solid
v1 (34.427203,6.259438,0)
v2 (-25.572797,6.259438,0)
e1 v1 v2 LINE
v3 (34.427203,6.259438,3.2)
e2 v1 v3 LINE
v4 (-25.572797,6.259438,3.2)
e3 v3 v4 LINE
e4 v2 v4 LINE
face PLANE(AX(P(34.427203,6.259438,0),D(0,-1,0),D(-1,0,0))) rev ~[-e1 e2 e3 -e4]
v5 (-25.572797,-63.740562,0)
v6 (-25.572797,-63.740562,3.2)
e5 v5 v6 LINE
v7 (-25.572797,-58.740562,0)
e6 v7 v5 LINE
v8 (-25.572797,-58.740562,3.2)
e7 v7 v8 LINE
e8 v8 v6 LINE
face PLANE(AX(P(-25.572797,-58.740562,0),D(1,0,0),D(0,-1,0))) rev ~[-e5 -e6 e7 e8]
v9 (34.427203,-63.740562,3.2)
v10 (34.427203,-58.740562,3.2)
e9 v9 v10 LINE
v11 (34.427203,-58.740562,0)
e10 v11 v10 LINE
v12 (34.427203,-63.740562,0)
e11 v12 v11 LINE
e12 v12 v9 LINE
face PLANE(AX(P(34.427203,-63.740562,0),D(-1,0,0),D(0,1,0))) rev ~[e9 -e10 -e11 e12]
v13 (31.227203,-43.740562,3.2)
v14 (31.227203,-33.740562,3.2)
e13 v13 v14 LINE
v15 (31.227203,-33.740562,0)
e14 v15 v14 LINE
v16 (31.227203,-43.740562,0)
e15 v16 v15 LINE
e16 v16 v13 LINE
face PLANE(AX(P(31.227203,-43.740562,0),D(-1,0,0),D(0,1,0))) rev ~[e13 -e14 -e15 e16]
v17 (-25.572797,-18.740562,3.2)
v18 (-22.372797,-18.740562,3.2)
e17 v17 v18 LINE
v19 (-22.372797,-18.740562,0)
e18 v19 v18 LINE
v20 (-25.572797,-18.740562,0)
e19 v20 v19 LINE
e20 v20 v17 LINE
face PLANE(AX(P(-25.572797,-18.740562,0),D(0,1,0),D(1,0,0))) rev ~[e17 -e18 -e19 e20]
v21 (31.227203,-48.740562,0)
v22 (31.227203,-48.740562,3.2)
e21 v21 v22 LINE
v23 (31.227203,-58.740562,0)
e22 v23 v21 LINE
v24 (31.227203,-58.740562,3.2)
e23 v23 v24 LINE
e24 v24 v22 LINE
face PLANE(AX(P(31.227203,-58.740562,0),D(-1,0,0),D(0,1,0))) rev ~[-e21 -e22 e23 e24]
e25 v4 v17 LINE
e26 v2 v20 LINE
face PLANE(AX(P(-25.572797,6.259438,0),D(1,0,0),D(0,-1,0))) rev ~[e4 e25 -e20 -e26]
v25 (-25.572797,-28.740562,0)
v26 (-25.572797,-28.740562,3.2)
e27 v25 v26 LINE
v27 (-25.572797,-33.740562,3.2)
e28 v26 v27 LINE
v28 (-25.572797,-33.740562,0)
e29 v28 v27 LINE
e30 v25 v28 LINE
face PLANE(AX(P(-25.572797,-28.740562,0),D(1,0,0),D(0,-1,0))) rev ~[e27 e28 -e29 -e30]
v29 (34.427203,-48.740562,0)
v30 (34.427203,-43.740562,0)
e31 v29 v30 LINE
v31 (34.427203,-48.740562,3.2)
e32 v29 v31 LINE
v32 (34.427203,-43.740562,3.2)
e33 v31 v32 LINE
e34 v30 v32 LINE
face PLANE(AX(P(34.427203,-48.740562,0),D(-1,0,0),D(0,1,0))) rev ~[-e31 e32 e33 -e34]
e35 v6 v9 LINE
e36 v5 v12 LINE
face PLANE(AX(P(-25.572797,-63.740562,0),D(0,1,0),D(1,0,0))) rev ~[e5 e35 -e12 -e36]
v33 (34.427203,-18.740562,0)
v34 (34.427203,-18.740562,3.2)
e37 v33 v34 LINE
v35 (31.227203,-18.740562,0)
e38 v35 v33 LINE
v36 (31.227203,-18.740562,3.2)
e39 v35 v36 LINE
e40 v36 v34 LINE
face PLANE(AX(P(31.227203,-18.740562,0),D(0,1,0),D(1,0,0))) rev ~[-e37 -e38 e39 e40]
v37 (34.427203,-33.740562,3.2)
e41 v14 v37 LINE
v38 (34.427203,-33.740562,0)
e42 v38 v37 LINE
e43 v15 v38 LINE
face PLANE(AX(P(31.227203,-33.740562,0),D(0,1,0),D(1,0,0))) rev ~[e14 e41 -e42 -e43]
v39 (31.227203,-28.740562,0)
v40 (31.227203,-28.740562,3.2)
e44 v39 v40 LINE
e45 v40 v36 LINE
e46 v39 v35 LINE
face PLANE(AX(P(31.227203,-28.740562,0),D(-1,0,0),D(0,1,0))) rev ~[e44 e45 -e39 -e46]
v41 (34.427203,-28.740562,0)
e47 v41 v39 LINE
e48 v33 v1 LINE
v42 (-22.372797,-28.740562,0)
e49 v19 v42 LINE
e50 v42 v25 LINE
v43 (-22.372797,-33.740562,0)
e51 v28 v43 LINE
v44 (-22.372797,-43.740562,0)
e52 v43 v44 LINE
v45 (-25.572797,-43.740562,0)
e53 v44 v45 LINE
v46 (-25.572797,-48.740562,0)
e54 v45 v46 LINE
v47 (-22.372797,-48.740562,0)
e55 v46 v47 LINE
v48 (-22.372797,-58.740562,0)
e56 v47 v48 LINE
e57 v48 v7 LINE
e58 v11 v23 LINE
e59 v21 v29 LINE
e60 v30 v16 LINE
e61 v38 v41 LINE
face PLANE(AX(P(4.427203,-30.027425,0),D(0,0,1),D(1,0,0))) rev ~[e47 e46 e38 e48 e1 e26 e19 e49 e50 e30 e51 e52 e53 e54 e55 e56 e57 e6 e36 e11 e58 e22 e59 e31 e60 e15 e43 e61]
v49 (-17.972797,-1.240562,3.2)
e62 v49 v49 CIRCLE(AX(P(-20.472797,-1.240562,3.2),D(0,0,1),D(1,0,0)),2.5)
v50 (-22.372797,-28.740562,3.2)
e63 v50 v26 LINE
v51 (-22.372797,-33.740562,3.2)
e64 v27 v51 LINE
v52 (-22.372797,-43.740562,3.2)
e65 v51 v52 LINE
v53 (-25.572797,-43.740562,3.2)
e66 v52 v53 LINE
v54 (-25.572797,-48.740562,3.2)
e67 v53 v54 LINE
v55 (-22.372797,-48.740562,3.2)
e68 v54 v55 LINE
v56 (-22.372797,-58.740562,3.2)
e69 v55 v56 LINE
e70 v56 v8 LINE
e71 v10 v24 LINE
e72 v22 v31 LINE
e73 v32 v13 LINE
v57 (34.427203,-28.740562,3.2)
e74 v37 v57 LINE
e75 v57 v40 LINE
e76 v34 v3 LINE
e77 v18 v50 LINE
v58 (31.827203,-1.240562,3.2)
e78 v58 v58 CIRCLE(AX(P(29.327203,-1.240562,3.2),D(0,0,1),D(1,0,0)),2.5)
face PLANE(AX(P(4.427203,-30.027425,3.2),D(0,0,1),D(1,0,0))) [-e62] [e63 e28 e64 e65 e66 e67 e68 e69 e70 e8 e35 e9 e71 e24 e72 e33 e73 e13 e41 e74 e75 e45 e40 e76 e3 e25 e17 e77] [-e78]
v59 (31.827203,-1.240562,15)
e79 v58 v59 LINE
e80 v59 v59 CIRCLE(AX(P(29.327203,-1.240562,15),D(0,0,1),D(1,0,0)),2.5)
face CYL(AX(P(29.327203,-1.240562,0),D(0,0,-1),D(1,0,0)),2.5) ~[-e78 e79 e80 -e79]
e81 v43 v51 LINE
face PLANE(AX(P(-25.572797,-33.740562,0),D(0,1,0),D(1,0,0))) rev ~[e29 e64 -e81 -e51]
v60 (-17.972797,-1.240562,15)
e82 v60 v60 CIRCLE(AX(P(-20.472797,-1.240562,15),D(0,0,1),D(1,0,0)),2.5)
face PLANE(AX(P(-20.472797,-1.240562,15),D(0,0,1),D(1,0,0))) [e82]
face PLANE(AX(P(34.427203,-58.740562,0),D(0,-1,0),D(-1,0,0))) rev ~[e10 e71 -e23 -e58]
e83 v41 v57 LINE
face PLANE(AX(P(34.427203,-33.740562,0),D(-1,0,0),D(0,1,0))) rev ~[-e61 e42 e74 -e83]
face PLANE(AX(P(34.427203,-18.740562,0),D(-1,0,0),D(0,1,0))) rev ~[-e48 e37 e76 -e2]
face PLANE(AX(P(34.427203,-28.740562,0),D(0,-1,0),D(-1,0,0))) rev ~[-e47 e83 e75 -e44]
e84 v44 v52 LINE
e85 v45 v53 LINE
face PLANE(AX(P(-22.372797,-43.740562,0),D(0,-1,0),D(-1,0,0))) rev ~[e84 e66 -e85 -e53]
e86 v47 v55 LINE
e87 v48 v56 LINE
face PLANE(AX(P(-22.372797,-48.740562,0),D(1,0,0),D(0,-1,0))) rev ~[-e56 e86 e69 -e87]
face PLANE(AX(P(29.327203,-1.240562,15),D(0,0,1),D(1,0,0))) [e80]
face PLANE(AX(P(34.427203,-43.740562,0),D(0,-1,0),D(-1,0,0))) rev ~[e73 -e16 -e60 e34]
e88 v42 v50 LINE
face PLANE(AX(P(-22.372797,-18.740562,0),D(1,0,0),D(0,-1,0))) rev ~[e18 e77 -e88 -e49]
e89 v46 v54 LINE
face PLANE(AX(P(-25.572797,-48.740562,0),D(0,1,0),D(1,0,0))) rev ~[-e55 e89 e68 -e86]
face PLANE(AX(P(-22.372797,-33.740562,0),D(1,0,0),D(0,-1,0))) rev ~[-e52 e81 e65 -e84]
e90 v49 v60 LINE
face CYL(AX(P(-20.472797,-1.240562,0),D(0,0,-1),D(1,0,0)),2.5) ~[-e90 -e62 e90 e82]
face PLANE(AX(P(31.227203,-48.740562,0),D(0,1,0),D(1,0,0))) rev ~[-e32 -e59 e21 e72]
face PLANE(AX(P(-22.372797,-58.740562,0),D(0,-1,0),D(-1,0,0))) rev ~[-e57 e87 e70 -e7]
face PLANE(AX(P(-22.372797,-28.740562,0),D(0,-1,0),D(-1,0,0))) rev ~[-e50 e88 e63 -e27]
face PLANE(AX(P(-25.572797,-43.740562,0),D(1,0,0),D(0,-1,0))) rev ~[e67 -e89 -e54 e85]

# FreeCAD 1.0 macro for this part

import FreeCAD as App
import Part
import Sketcher
from FreeCAD import Vector
Q = App.Units.Quantity

doc = App.newDocument("Part")
body = doc.addObject("PartDesign::Body", "Body")

sketch1 = body.newObject("Sketcher::SketchObject", "Sketch")
sketch1.AttachmentSupport = (doc.getObject("XY_Plane"), [""])
sketch1.MapMode = "FlatFace"
sketch1.addGeometry([
    Part.LineSegment(Vector(34.4, 6.3, 0), Vector(-25.6, 6.3, 0)),
    Part.LineSegment(Vector(-25.6, 6.3, 0), Vector(-25.6, -18.7, 0)),
    Part.LineSegment(Vector(-25.6, -18.7, 0), Vector(-22.4, -18.7, 0)),
    Part.LineSegment(Vector(-22.4, -18.7, 0), Vector(-22.4, -28.7, 0)),
    Part.LineSegment(Vector(-22.4, -28.7, 0), Vector(-25.6, -28.7, 0)),
    Part.LineSegment(Vector(-25.6, -28.7, 0), Vector(-25.6, -33.7, 0)),
    Part.LineSegment(Vector(-25.6, -33.7, 0), Vector(-22.4, -33.7, 0)),
    Part.LineSegment(Vector(-22.4, -33.7, 0), Vector(-22.4, -43.7, 0)),
    Part.LineSegment(Vector(-22.4, -43.7, 0), Vector(-25.6, -43.7, 0)),
    Part.LineSegment(Vector(-25.6, -43.7, 0), Vector(-25.6, -48.7, 0)),
    Part.LineSegment(Vector(-25.6, -48.7, 0), Vector(-22.4, -48.7, 0)),
    Part.LineSegment(Vector(-22.4, -48.7, 0), Vector(-22.4, -58.7, 0)),
    Part.LineSegment(Vector(-22.4, -58.7, 0), Vector(-25.6, -58.7, 0)),
    Part.LineSegment(Vector(-25.6, -58.7, 0), Vector(-25.6, -63.7, 0)),
    Part.LineSegment(Vector(-25.6, -63.7, 0), Vector(34.4, -63.7, 0)),
    Part.LineSegment(Vector(34.4, -63.7, 0), Vector(34.4, -58.7, 0)),
    Part.LineSegment(Vector(34.4, -58.7, 0), Vector(31.2, -58.7, 0)),
    Part.LineSegment(Vector(31.2, -58.7, 0), Vector(31.2, -48.7, 0)),
    Part.LineSegment(Vector(31.2, -48.7, 0), Vector(34.4, -48.7, 0)),
    Part.LineSegment(Vector(34.4, -48.7, 0), Vector(34.4, -43.7, 0)),
    Part.LineSegment(Vector(34.4, -43.7, 0), Vector(31.2, -43.7, 0)),
    Part.LineSegment(Vector(31.2, -43.7, 0), Vector(31.2, -33.7, 0)),
    Part.LineSegment(Vector(31.2, -33.7, 0), Vector(34.4, -33.7, 0)),
    Part.LineSegment(Vector(34.4, -33.7, 0), Vector(34.4, -28.7, 0)),
    Part.LineSegment(Vector(34.4, -28.7, 0), Vector(31.2, -28.7, 0)),
    Part.LineSegment(Vector(31.2, -28.7, 0), Vector(31.2, -18.7, 0)),
    Part.LineSegment(Vector(31.2, -18.7, 0), Vector(34.4, -18.7, 0)),
    Part.LineSegment(Vector(34.4, -18.7, 0), Vector(34.4, 6.3, 0)),
    Part.Circle(Vector(-20.5, -1.2, 0), Vector(0, 0, 1), 2.5),
    Part.Circle(Vector(29.3, -1.2, 0), Vector(0, 0, 1), 2.5),
], False)
sketch1.addConstraint([
    Sketcher.Constraint("Coincident", 0, 2, 1, 1),
    Sketcher.Constraint("Coincident", 1, 2, 2, 1),
    Sketcher.Constraint("Coincident", 2, 2, 3, 1),
    Sketcher.Constraint("Coincident", 3, 2, 4, 1),
    Sketcher.Constraint("Coincident", 4, 2, 5, 1),
    Sketcher.Constraint("Coincident", 5, 2, 6, 1),
    Sketcher.Constraint("Coincident", 6, 2, 7, 1),
    Sketcher.Constraint("Coincident", 7, 2, 8, 1),
    Sketcher.Constraint("Coincident", 8, 2, 9, 1),
    Sketcher.Constraint("Coincident", 9, 2, 10, 1),
    Sketcher.Constraint("Coincident", 10, 2, 11, 1),
    Sketcher.Constraint("Coincident", 11, 2, 12, 1),
    Sketcher.Constraint("Coincident", 12, 2, 13, 1),
    Sketcher.Constraint("Coincident", 13, 2, 14, 1),
    Sketcher.Constraint("Coincident", 14, 2, 15, 1),
    Sketcher.Constraint("Coincident", 15, 2, 16, 1),
    Sketcher.Constraint("Coincident", 16, 2, 17, 1),
    Sketcher.Constraint("Coincident", 17, 2, 18, 1),
    Sketcher.Constraint("Coincident", 18, 2, 19, 1),
    Sketcher.Constraint("Coincident", 19, 2, 20, 1),
    Sketcher.Constraint("Coincident", 20, 2, 21, 1),
    Sketcher.Constraint("Coincident", 21, 2, 22, 1),
    Sketcher.Constraint("Coincident", 22, 2, 23, 1),
    Sketcher.Constraint("Coincident", 23, 2, 24, 1),
    Sketcher.Constraint("Coincident", 24, 2, 25, 1),
    Sketcher.Constraint("Coincident", 25, 2, 26, 1),
    Sketcher.Constraint("Coincident", 26, 2, 27, 1),
    Sketcher.Constraint("Coincident", 27, 2, 0, 1),
    Sketcher.Constraint("Horizontal", 0),
    Sketcher.Constraint("Vertical", 1),
    Sketcher.Constraint("Horizontal", 2),
    Sketcher.Constraint("Vertical", 3),
    Sketcher.Constraint("Horizontal", 4),
    Sketcher.Constraint("Vertical", 5),
    Sketcher.Constraint("Horizontal", 6),
    Sketcher.Constraint("Vertical", 7),
    Sketcher.Constraint("Horizontal", 8),
    Sketcher.Constraint("Vertical", 9),
    Sketcher.Constraint("Horizontal", 10),
    Sketcher.Constraint("Vertical", 11),
    Sketcher.Constraint("Horizontal", 12),
    Sketcher.Constraint("Vertical", 13),
    Sketcher.Constraint("Horizontal", 14),
    Sketcher.Constraint("Vertical", 15),
    Sketcher.Constraint("Horizontal", 16),
    Sketcher.Constraint("Vertical", 17),
    Sketcher.Constraint("Horizontal", 18),
    Sketcher.Constraint("Vertical", 19),
    Sketcher.Constraint("Horizontal", 20),
    Sketcher.Constraint("Vertical", 21),
    Sketcher.Constraint("Horizontal", 22),
    Sketcher.Constraint("Vertical", 23),
    Sketcher.Constraint("Horizontal", 24),
    Sketcher.Constraint("Vertical", 25),
    Sketcher.Constraint("Horizontal", 26),
    Sketcher.Constraint("Vertical", 27),
    Sketcher.Constraint("Equal", 28, 29),
    Sketcher.Constraint("Horizontal", 28, 3, 29, 3),
    Sketcher.Constraint("Horizontal", 12, 2, 15, 2),
    Sketcher.Constraint("Horizontal", 10, 2, 17, 2),
    Sketcher.Constraint("Horizontal", 8, 2, 19, 2),
    Sketcher.Constraint("Horizontal", 6, 2, 21, 2),
    Sketcher.Constraint("Horizontal", 4, 2, 23, 2),
    Sketcher.Constraint("Horizontal", 2, 2, 25, 2),
    Sketcher.Constraint("Vertical", 1, 2, 4, 2),
    Sketcher.Constraint("Vertical", 3, 2, 6, 2),
    Sketcher.Constraint("Vertical", 5, 2, 8, 2),
    Sketcher.Constraint("Vertical", 7, 2, 10, 2),
    Sketcher.Constraint("Vertical", 9, 2, 12, 2),
    Sketcher.Constraint("Vertical", 15, 2, 18, 2),
    Sketcher.Constraint("Vertical", 17, 2, 20, 2),
    Sketcher.Constraint("Vertical", 19, 2, 22, 2),
    Sketcher.Constraint("Vertical", 21, 2, 24, 2),
    Sketcher.Constraint("Vertical", 23, 2, 26, 2),
    Sketcher.Constraint("Equal", 12, 16),
    Sketcher.Constraint("Equal", 3, 7),
    Sketcher.Constraint("Equal", 5, 9),
    Sketcher.Constraint("Equal", 7, 11),
    Sketcher.Constraint("Equal", 9, 13),
    Sketcher.Constraint("Diameter", 28, Q("5 mm")),
    Sketcher.Constraint("DistanceX", 0, 2, 0, 1, Q("60 mm")),
    Sketcher.Constraint("DistanceY", 1, 2, 1, 1, Q("25 mm")),
    Sketcher.Constraint("DistanceY", 3, 2, 3, 1, Q("10 mm")),
    Sketcher.Constraint("DistanceY", 5, 2, 5, 1, Q("5 mm")),
    Sketcher.Constraint("DistanceX", 2, 1, 2, 2, Q("3.2 mm")),
    Sketcher.Constraint("DistanceX", 28, 3, 29, 3, Q("49.8 mm")),
    Sketcher.Constraint("DistanceX", 0, 2, 28, 3, Q("5.1 mm")),
    Sketcher.Constraint("DistanceY", 28, 3, 0, 2, Q("7.5 mm")),
    Sketcher.Constraint("DistanceY", 28, 3, -1, 1, Q("1.240562 mm")),
    Sketcher.Constraint("DistanceX", 28, 3, -1, 1, Q("20.472797 mm")),
])
pad1 = body.newObject("PartDesign::Pad", "Pad")
pad1.Profile = sketch1
pad1.Length = 3.2

sketch2 = body.newObject("Sketcher::SketchObject", "Sketch001")
sketch2.AttachmentSupport = (doc.getObject("XY_Plane"), [""])
sketch2.MapMode = "FlatFace"
sketch2.addGeometry([
    Part.Circle(Vector(29.3, -1.2, 0), Vector(0, 0, 1), 2.5),
    Part.Circle(Vector(-20.5, -1.2, 0), Vector(0, 0, 1), 2.5),
], False)
sketch2.addConstraint([
    Sketcher.Constraint("Equal", 0, 1),
    Sketcher.Constraint("Horizontal", 0, 3, 1, 3),
    Sketcher.Constraint("Diameter", 0, Q("5 mm")),
    Sketcher.Constraint("DistanceX", 1, 3, 0, 3, Q("49.8 mm")),
    Sketcher.Constraint("DistanceY", 0, 3, -1, 1, Q("1.240562 mm")),
    Sketcher.Constraint("DistanceX", -1, 1, 0, 3, Q("29.327203 mm")),
])
pad2 = body.newObject("PartDesign::Pad", "Pad001")
pad2.Profile = sketch2
pad2.Length = 15

doc.recompute()
